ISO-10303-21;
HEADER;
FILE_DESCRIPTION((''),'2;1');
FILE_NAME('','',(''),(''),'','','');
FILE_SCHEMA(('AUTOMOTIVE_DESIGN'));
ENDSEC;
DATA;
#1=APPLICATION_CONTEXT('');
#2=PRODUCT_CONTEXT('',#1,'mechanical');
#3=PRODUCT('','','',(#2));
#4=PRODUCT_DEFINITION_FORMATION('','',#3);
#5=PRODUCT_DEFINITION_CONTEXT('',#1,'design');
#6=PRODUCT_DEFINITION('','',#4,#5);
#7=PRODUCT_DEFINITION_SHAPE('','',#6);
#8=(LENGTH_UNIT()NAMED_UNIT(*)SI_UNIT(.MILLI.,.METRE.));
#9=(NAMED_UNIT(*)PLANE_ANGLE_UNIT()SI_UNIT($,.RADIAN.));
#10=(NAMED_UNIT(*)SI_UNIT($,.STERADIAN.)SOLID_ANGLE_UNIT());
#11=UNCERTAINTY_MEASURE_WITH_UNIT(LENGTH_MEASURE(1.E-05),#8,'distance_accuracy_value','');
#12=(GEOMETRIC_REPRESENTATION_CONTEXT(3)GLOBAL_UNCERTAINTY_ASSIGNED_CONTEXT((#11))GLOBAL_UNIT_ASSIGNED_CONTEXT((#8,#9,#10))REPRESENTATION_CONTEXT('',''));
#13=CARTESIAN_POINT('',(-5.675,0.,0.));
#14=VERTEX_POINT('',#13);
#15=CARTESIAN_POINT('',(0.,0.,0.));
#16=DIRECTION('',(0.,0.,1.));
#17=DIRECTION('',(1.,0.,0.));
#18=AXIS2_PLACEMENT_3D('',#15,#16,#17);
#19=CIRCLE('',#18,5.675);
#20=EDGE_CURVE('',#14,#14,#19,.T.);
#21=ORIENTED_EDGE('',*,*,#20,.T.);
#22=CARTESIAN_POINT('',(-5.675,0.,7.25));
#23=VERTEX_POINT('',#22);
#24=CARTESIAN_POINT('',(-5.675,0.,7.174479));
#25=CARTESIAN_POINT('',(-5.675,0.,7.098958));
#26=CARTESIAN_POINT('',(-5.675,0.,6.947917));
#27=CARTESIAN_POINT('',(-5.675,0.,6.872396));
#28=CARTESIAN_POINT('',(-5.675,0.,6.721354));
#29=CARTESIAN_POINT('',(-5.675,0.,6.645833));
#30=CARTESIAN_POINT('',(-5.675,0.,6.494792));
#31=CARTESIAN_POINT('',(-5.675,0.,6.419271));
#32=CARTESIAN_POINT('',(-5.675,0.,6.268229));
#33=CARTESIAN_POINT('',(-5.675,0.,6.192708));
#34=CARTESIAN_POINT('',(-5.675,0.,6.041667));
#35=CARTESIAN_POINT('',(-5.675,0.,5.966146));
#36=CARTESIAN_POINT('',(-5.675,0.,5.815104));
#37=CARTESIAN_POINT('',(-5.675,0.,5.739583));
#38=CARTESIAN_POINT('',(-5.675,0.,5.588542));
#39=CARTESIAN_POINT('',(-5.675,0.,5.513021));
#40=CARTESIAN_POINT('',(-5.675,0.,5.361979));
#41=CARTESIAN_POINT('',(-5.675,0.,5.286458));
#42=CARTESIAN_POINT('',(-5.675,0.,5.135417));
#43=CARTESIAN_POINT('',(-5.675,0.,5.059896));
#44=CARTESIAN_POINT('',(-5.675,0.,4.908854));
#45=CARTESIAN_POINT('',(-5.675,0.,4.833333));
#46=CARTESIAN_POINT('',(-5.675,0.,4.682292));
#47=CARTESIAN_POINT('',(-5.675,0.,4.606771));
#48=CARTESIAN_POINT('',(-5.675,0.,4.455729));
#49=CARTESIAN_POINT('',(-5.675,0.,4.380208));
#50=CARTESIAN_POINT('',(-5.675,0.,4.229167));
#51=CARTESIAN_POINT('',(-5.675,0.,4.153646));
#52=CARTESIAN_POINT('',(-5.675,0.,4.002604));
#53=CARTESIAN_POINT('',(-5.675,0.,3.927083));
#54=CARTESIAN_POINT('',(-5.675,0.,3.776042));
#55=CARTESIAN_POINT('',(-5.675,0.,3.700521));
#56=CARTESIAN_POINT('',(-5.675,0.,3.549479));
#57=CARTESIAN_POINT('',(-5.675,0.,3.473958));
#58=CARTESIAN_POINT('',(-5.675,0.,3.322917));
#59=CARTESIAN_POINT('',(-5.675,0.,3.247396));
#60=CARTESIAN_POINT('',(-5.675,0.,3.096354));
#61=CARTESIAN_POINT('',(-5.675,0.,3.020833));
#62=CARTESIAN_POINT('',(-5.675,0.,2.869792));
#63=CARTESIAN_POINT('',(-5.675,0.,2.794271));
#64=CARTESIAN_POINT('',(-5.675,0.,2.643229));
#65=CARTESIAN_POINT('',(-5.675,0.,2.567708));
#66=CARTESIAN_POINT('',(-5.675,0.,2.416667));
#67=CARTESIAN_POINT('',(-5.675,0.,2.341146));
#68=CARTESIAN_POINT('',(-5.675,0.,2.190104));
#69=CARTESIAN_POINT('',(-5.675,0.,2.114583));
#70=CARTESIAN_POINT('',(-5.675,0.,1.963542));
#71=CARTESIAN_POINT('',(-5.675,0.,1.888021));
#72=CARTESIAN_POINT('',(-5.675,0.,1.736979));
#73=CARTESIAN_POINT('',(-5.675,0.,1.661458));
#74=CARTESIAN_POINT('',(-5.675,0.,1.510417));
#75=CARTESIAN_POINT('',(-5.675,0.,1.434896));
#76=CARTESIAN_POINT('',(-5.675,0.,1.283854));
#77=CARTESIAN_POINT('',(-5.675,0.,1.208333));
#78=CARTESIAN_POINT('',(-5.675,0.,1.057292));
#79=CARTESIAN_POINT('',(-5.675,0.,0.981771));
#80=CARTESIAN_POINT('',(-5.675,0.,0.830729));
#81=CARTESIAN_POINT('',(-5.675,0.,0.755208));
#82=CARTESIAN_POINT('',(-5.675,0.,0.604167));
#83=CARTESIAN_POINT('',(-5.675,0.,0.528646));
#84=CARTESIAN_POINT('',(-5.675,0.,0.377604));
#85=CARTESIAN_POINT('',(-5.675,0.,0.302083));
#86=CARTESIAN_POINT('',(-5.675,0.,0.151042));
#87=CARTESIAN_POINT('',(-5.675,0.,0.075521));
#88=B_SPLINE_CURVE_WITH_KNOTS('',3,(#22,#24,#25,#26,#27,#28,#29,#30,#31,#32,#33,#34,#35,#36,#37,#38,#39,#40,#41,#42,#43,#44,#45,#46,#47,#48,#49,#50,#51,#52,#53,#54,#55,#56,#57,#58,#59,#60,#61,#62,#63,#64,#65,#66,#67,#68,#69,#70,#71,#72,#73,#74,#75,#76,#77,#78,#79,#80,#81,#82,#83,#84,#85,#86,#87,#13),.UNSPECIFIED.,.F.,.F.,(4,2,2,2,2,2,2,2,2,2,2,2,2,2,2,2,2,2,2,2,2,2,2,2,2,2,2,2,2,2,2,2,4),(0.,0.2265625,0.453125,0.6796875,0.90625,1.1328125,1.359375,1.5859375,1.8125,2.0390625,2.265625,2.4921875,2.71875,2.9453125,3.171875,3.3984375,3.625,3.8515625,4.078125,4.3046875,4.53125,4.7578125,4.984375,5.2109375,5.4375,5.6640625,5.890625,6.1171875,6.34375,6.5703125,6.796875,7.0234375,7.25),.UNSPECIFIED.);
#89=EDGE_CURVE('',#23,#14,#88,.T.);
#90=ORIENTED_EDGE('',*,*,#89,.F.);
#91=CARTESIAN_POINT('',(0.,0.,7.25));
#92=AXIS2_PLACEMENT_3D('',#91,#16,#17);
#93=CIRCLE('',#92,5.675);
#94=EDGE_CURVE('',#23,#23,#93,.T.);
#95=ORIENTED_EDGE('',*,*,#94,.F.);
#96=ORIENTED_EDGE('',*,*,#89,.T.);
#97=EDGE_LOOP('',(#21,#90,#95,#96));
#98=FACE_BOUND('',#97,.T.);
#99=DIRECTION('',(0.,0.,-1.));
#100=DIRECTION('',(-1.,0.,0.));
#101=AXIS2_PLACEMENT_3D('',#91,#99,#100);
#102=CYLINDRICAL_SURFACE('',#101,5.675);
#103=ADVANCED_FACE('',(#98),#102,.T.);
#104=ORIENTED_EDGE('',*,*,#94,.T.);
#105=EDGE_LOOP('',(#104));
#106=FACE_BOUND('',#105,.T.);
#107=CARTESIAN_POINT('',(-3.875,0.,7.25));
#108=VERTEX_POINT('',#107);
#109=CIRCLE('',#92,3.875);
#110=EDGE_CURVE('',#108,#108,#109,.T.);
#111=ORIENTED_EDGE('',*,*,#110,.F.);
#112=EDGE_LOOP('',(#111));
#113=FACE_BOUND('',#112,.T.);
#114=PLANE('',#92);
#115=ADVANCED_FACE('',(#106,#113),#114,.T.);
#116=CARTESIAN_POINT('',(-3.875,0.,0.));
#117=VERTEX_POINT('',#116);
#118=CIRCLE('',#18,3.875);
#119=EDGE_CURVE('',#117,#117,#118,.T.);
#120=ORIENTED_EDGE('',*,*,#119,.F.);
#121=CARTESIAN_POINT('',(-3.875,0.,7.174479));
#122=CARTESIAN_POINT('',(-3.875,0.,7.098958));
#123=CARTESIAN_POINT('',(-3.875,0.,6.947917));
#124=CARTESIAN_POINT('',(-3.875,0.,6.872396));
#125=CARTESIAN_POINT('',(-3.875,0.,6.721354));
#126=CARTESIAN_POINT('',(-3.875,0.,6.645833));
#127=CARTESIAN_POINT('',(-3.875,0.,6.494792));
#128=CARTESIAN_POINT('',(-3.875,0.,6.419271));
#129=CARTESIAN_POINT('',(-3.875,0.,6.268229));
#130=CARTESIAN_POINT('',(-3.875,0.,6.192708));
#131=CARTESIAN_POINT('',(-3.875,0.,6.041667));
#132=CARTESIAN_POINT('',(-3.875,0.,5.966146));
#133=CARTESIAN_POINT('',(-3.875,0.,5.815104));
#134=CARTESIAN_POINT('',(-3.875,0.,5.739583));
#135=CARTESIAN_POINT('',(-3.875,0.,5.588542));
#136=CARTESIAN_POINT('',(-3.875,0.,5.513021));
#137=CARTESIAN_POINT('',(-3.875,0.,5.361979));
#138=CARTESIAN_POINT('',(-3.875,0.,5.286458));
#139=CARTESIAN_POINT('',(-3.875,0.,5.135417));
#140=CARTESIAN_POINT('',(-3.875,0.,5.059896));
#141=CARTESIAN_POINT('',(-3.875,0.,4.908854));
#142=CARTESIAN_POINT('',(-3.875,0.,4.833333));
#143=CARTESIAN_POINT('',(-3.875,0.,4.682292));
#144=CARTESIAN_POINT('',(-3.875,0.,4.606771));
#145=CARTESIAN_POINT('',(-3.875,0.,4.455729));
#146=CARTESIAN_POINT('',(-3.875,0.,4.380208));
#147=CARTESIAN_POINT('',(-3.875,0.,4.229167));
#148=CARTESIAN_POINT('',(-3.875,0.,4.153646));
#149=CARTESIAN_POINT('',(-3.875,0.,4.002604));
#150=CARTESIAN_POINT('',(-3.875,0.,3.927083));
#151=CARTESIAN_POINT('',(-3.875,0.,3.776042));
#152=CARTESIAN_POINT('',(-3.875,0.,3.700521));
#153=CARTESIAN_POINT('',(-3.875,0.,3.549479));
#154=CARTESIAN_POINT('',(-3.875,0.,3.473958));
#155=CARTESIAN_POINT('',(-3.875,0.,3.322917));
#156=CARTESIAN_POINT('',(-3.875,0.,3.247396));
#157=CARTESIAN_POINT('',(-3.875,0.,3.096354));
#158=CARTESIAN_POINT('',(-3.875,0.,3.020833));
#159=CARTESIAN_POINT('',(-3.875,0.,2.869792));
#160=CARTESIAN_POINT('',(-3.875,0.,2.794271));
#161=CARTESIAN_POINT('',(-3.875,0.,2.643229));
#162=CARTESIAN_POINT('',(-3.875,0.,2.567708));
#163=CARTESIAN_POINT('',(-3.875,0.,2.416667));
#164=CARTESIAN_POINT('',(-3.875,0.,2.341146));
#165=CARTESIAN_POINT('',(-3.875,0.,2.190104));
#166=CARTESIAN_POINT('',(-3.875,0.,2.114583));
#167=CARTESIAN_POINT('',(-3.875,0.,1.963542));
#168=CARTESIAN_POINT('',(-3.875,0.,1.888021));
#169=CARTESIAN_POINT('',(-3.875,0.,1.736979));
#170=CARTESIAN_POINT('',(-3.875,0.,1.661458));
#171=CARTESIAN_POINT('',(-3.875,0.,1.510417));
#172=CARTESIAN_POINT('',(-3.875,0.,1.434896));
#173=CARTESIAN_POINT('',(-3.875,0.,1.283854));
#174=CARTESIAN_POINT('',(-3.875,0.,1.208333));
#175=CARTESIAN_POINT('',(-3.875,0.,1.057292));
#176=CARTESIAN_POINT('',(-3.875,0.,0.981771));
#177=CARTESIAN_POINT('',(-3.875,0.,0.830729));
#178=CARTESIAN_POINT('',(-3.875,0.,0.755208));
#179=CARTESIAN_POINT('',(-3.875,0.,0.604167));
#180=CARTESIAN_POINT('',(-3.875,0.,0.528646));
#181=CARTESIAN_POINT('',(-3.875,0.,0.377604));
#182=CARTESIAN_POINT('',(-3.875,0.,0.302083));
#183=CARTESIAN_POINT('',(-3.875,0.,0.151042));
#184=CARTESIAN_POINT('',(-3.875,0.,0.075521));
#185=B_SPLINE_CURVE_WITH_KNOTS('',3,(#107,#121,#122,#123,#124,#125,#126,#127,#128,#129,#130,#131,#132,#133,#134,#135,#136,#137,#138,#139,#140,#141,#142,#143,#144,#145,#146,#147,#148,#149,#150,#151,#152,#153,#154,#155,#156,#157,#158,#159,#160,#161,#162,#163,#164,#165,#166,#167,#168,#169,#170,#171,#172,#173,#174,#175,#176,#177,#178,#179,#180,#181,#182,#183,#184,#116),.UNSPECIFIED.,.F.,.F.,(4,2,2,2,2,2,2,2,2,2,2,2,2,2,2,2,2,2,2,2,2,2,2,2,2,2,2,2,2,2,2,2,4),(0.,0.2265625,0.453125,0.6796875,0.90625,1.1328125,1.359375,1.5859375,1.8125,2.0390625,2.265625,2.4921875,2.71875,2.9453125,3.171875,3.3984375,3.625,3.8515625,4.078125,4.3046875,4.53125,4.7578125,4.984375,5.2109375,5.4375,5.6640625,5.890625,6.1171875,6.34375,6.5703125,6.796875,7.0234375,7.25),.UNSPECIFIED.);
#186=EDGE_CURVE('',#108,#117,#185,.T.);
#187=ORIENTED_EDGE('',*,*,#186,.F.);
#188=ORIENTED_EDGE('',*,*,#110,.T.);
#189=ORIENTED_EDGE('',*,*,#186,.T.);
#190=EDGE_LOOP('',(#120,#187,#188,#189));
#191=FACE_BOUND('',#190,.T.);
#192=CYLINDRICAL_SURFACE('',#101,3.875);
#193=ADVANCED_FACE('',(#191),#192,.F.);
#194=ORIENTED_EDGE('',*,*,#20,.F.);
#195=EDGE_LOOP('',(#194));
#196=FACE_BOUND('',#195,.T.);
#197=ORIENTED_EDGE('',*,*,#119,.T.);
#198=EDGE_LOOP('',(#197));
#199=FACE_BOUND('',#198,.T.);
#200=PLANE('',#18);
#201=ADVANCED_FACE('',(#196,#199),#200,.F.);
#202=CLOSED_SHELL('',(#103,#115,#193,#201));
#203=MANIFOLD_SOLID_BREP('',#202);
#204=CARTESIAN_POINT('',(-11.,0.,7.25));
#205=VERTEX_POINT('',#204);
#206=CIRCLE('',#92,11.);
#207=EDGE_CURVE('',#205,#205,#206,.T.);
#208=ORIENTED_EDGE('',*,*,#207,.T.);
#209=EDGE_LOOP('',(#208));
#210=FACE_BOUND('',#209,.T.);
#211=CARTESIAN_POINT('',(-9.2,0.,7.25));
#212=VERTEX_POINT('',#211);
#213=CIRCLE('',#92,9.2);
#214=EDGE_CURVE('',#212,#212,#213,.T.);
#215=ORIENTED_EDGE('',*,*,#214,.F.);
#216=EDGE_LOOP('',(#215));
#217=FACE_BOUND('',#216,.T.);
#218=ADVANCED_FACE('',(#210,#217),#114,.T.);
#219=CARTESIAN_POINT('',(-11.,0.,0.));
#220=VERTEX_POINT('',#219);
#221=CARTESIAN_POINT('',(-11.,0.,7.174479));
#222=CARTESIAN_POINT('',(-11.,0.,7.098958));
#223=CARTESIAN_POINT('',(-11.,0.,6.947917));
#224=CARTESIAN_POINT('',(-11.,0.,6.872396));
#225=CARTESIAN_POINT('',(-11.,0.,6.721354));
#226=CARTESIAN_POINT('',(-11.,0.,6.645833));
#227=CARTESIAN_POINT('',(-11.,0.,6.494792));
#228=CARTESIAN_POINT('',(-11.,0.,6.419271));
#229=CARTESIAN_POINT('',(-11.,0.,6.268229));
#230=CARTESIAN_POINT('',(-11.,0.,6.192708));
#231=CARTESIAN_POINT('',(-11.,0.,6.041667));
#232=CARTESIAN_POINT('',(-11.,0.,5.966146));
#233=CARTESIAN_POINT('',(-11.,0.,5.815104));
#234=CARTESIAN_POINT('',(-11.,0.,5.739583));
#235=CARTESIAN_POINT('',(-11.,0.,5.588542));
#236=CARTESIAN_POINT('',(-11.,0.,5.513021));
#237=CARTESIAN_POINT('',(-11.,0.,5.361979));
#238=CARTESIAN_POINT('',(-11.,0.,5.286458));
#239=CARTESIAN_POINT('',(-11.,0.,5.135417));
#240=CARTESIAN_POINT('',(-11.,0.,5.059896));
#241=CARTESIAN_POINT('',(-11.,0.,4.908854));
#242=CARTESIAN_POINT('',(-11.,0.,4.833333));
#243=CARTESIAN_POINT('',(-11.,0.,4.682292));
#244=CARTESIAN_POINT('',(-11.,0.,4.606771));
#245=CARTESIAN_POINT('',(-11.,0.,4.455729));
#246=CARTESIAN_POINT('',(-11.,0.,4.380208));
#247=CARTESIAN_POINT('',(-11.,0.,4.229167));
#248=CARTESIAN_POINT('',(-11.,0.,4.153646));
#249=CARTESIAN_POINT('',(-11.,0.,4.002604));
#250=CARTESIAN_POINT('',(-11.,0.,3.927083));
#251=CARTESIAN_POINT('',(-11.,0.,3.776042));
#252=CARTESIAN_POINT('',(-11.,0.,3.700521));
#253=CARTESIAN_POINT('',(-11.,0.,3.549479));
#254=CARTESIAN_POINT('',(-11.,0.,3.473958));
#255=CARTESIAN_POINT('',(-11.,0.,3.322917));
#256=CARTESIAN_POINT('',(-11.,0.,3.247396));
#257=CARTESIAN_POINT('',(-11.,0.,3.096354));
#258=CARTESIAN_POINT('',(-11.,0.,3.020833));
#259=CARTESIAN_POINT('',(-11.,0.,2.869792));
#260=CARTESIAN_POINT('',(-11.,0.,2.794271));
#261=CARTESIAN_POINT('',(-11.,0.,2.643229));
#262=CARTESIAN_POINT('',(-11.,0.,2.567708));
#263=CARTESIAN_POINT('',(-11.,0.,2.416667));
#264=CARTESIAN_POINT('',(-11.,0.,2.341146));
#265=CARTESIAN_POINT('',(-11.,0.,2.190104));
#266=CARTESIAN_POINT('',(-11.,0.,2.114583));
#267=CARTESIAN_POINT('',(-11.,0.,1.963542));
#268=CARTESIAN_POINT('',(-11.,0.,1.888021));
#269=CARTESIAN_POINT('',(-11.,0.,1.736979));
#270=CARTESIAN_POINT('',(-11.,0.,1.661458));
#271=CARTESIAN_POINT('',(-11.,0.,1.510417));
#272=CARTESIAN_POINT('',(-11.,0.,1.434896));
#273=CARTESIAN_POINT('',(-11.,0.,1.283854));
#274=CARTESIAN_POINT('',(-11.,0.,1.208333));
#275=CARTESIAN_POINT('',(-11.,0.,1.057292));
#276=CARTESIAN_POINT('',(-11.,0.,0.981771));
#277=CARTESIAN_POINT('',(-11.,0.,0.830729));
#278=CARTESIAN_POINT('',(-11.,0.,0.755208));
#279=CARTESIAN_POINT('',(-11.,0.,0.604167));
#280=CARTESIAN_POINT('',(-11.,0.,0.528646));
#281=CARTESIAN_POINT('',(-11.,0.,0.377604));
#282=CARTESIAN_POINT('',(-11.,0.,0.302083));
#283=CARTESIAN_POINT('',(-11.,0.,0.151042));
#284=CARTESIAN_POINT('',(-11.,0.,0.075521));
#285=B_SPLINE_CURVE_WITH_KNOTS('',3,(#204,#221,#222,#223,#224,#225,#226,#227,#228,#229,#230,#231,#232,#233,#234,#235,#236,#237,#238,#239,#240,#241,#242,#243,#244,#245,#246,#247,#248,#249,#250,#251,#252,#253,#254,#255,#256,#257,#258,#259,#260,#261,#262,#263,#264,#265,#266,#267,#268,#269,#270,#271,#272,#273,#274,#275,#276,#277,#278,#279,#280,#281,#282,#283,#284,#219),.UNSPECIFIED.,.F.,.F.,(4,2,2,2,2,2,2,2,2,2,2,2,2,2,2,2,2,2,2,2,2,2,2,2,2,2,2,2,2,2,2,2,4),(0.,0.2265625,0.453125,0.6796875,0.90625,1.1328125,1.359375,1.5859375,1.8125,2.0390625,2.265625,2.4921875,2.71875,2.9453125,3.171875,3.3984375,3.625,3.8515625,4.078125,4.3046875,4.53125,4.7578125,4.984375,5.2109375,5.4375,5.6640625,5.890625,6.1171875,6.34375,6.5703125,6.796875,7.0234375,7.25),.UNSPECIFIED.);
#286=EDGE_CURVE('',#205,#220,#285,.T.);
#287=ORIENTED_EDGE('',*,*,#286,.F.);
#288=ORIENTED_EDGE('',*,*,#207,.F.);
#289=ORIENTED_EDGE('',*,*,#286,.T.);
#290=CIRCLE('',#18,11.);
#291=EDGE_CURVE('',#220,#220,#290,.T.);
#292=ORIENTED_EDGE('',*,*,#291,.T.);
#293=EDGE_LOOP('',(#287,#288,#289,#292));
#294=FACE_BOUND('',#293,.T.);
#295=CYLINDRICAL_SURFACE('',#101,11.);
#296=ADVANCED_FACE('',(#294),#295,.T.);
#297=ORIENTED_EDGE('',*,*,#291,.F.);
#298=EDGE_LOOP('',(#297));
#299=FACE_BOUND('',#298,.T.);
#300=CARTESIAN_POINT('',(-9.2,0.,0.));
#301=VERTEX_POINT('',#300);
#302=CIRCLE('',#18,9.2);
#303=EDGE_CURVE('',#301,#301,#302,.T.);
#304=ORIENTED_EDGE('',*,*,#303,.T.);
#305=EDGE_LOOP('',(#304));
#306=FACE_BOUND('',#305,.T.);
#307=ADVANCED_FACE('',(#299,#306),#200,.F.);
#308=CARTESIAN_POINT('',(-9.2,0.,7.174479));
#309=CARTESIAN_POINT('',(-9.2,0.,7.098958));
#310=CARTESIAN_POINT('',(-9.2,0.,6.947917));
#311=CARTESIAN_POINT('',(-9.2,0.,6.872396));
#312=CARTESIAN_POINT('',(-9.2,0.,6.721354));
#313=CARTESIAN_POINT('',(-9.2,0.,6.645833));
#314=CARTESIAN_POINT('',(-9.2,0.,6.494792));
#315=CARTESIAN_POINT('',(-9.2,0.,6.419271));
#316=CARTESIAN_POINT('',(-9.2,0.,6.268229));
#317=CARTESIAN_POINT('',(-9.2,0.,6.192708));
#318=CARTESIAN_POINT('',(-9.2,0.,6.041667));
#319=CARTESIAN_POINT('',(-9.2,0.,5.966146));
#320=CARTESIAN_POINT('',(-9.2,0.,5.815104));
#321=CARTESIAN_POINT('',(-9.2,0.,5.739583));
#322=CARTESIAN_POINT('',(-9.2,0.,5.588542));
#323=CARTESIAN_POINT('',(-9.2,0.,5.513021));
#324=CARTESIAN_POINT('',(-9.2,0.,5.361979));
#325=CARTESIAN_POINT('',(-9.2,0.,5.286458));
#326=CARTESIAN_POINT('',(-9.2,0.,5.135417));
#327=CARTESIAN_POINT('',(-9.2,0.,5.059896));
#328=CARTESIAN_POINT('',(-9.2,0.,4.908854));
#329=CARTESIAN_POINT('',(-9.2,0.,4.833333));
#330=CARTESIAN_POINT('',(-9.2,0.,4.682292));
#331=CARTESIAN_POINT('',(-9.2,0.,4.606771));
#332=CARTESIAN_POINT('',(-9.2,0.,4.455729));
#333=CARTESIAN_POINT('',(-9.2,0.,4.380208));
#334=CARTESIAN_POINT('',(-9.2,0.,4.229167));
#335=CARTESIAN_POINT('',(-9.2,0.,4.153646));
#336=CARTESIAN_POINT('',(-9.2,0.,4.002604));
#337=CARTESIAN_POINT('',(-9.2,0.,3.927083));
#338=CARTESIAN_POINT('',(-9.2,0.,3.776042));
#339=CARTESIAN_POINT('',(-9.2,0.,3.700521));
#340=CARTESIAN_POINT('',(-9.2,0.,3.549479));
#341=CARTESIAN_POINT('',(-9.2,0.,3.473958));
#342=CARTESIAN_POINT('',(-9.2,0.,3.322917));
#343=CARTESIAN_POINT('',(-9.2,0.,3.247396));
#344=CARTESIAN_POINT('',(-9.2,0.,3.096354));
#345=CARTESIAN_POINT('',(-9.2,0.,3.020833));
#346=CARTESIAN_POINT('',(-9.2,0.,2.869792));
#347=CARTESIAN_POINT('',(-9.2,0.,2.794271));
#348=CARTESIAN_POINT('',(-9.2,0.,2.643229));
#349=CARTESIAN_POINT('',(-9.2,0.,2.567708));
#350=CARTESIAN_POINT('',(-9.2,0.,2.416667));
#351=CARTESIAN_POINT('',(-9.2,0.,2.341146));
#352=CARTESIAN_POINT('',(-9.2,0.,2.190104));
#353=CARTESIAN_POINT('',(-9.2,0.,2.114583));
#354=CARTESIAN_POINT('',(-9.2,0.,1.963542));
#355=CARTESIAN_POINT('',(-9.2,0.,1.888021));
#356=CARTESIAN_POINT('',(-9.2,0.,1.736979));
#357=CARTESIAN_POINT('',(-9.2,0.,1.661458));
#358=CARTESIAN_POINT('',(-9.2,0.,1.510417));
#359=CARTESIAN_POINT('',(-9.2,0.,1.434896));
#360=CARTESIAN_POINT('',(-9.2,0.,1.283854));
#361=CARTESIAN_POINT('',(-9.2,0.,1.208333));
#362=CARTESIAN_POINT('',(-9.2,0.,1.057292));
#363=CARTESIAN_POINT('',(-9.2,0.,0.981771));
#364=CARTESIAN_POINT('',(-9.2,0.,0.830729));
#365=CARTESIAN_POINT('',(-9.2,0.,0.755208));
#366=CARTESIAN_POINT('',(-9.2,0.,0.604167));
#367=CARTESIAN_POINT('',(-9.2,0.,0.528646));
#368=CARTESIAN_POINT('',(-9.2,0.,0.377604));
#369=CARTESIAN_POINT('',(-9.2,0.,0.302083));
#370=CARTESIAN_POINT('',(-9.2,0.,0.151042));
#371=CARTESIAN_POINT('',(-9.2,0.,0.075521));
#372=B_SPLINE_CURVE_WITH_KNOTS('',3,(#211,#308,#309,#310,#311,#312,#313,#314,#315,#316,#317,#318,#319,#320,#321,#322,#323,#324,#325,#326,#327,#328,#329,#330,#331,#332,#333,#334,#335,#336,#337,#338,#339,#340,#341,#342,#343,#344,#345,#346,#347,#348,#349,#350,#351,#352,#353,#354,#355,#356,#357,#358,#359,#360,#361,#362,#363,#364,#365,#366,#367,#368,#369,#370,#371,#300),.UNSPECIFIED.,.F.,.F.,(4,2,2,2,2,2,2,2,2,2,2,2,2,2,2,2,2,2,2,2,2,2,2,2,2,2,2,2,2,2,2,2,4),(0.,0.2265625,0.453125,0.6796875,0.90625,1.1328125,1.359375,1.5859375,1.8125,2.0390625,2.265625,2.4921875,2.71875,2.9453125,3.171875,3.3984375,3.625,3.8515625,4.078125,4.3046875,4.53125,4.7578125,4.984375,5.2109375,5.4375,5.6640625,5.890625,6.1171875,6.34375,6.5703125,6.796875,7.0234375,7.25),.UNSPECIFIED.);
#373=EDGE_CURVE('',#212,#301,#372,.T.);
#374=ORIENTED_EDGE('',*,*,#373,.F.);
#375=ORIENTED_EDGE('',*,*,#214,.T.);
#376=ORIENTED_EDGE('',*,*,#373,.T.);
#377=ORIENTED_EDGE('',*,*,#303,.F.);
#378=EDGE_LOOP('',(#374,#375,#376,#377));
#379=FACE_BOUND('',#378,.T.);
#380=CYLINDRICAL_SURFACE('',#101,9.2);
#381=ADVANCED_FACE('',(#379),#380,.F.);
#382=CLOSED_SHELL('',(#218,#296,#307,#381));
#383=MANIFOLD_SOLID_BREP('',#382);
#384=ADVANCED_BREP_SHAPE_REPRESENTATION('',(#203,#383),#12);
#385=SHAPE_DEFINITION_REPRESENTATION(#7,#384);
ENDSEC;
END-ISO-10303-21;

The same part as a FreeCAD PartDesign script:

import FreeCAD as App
import Part
import Sketcher
from FreeCAD import Vector
Q = App.Units.Quantity

doc = App.newDocument("Part")
body = doc.addObject("PartDesign::Body", "Body")

# Sketch on XY plane
sketch1 = body.newObject("Sketcher::SketchObject", "Sketch")
sketch1.AttachmentSupport = (doc.getObject("XY_Plane"), [""])
sketch1.MapMode = "FlatFace"
sketch1.addGeometry(Part.Circle(Vector(0, 0, 0), Vector(0, 0, 1), 11), False)
sketch1.addGeometry(Part.Circle(Vector(0, 0, 0), Vector(0, 0, 1), 9), False)
sketch1.addConstraint(Sketcher.Constraint("Coincident", 0, 3, -1, 1))
sketch1.addConstraint(Sketcher.Constraint("Coincident", 1, 3, -1, 1))
sketch1.addConstraint(Sketcher.Constraint("Diameter", 0, Q("22 mm")))
sketch1.addConstraint(Sketcher.Constraint("Diameter", 1, Q("18.4 mm")))
pad1 = body.newObject("PartDesign::Pad", "Pad")
pad1.Profile = sketch1
pad1.Length = 7.25
body2 = doc.addObject("PartDesign::Body", "Body001")

# Sketch on XY plane
sketch2 = body2.newObject("Sketcher::SketchObject", "Sketch001")
sketch2.AttachmentSupport = (doc.getObject("XY_Plane001"), [""])
sketch2.MapMode = "FlatFace"
sketch2.addGeometry(Part.Circle(Vector(0, 0, 0), Vector(0, 0, 1), 5.7), False)
sketch2.addGeometry(Part.Circle(Vector(0, 0, 0), Vector(0, 0, 1), 3.9), False)
sketch2.addConstraint(Sketcher.Constraint("Coincident", 0, 3, -1, 1))
sketch2.addConstraint(Sketcher.Constraint("Coincident", 1, 3, -1, 1))
sketch2.addConstraint(Sketcher.Constraint("Diameter", 0, Q("11.35 mm")))
sketch2.addConstraint(Sketcher.Constraint("Diameter", 1, Q("7.75 mm")))
pad2 = body2.newObject("PartDesign::Pad", "Pad001")
pad2.Profile = sketch2
pad2.Length = 7.25

doc.recompute()
